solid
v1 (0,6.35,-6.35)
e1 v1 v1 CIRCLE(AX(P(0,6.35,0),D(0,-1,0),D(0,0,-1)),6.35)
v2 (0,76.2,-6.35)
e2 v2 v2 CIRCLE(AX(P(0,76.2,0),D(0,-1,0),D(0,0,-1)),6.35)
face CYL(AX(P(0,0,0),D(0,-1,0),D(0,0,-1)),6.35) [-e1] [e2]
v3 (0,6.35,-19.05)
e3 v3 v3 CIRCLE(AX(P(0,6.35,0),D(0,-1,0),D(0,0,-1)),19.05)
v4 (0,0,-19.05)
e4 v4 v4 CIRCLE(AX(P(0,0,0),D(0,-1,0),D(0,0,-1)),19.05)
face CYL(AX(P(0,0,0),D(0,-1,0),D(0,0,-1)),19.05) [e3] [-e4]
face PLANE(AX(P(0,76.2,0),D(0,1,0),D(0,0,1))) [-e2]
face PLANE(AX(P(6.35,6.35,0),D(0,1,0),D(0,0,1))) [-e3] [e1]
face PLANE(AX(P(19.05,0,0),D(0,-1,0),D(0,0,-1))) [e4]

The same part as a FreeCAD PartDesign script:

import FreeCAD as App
import Part
import Sketcher
from FreeCAD import Vector
Q = App.Units.Quantity

doc = App.newDocument("Part")
body = doc.addObject("PartDesign::Body", "Body")

sketch1 = body.newObject("Sketcher::SketchObject", "Sketch")
sketch1.AttachmentSupport = (doc.getObject("XY_Plane"), [""])
sketch1.MapMode = "FlatFace"
sketch1.addGeometry(Part.LineSegment(Vector(0, 76, 0), Vector(0, 0, 0)), False)
sketch1.addGeometry(Part.LineSegment(Vector(0, 0, 0), Vector(19, 0, 0)), False)
sketch1.addGeometry(Part.LineSegment(Vector(19, 0, 0), Vector(19, 6, 0)), False)
sketch1.addGeometry(Part.LineSegment(Vector(19, 6, 0), Vector(6, 6, 0)), False)
sketch1.addGeometry(Part.LineSegment(Vector(6, 6, 0), Vector(6, 76, 0)), False)
sketch1.addGeometry(Part.LineSegment(Vector(6, 76, 0), Vector(0, 76, 0)), False)
sketch1.addConstraint(Sketcher.Constraint("Coincident", 0, 2, 1, 1))
sketch1.addConstraint(Sketcher.Constraint("Coincident", 1, 2, 2, 1))
sketch1.addConstraint(Sketcher.Constraint("Coincident", 2, 2, 3, 1))
sketch1.addConstraint(Sketcher.Constraint("Coincident", 3, 2, 4, 1))
sketch1.addConstraint(Sketcher.Constraint("Coincident", 4, 2, 5, 1))
sketch1.addConstraint(Sketcher.Constraint("Coincident", 5, 2, 0, 1))
sketch1.addConstraint(Sketcher.Constraint("Vertical", 0))
sketch1.addConstraint(Sketcher.Constraint("Horizontal", 1))
sketch1.addConstraint(Sketcher.Constraint("Vertical", 2))
sketch1.addConstraint(Sketcher.Constraint("Horizontal", 3))
sketch1.addConstraint(Sketcher.Constraint("Vertical", 4))
sketch1.addConstraint(Sketcher.Constraint("Horizontal", 5))
sketch1.addConstraint(Sketcher.Constraint("Coincident", 0, 2, -1, 1))
sketch1.addConstraint(Sketcher.Constraint("Equal", 5, 2))
sketch1.addConstraint(Sketcher.Constraint("DistanceY", 0, 2, 0, 1, Q("3 in")))
sketch1.addConstraint(Sketcher.Constraint("DistanceX", 3, 2, 3, 1, Q("0.5 in")))
sketch1.addConstraint(Sketcher.Constraint("DistanceX", 1, 1, 1, 2, Q("0.75 in")))
revolution = body.newObject("PartDesign::Revolution", "Revolution")
revolution.Profile = sketch1
revolution.ReferenceAxis = (sketch1, ["V_Axis"])
revolution.Angle = 360

doc.recompute()
